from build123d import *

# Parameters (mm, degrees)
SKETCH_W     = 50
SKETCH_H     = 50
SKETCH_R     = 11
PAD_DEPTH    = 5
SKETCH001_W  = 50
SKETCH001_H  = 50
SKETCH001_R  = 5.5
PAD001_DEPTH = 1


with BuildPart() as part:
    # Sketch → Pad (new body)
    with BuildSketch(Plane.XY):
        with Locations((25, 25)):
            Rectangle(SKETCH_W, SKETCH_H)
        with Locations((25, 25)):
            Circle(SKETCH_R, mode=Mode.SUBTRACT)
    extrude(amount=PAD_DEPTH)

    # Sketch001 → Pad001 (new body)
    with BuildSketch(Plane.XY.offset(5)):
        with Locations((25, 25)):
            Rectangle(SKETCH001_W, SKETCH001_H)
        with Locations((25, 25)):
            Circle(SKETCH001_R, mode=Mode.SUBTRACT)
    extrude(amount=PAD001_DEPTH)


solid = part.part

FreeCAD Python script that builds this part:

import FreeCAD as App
import Part
import Sketcher
from FreeCAD import Vector

doc = App.newDocument("Part")
params = doc.addObject("Spreadsheet::Sheet", "Params")
for row, (alias, value) in enumerate([
    ("sketch1_diameter", "22 mm"),
    ("sketch1_width", "50 mm"),
    ("pad1_length", "5 mm"),
    ("sketch2_diameter", "11 mm"),
    ("sketch2_width", "50 mm"),
    ("pad2_length", "1 mm"),
], start=1):
    params.set(f"A{row}", alias)
    params.set(f"B{row}", "=" + value)
    params.setAlias(f"B{row}", alias)

body = doc.addObject("PartDesign::Body", "Body")

# Sketch on XY plane
sketch1 = body.newObject("Sketcher::SketchObject", "Sketch")
sketch1.AttachmentSupport = (doc.getObject("XY_Plane"), [""])
sketch1.MapMode = "FlatFace"
sketch1.addGeometry([
    Part.LineSegment(Vector(0, 50, 0), Vector(0, 0, 0)),  # 0
    Part.LineSegment(Vector(0, 0, 0), Vector(50, 0, 0)),  # 1
    Part.LineSegment(Vector(50, 0, 0), Vector(50, 50, 0)),  # 2
    Part.LineSegment(Vector(50, 50, 0), Vector(0, 50, 0)),  # 3
    Part.Circle(Vector(25, 25, 0), Vector(0, 0, 1), 11),  # 4
], False)
sketch1.addConstraint([
    Sketcher.Constraint("Coincident", 0, 2, 1, 1),
    Sketcher.Constraint("Coincident", 1, 2, 2, 1),
    Sketcher.Constraint("Coincident", 2, 2, 3, 1),
    Sketcher.Constraint("Coincident", 3, 2, 0, 1),
    Sketcher.Constraint("Vertical", 0),
    Sketcher.Constraint("Horizontal", 1),
    Sketcher.Constraint("Vertical", 2),
    Sketcher.Constraint("Horizontal", 3),
    Sketcher.Constraint("Coincident", 0, 2, -1, 1),
    Sketcher.Constraint("Equal", 3, 0),
    Sketcher.Constraint("Diameter", 4, 22.0),
    Sketcher.Constraint("DistanceX", 1, 1, 1, 2, 50.0),
    Sketcher.Constraint("DistanceX", -1, 1, 4, 3, 25.0),
    Sketcher.Constraint("DistanceY", -1, 1, 4, 3, 25.0),
])
sketch1.setExpression("Constraints[10]", "Params.sketch1_diameter")
sketch1.setExpression("Constraints[11]", "Params.sketch1_width")
pad1 = body.newObject("PartDesign::Pad", "Pad")
pad1.Profile = sketch1
pad1.setExpression("Length", "Params.pad1_length")

# Sketch on XY plane
sketch2 = body.newObject("Sketcher::SketchObject", "Sketch001")
sketch2.AttachmentSupport = (doc.getObject("XY_Plane"), [""])
sketch2.MapMode = "FlatFace"
sketch2.AttachmentOffset = App.Placement(Vector(0, 0, 5), App.Rotation())
sketch2.addGeometry([
    Part.LineSegment(Vector(0, 50, 0), Vector(0, 0, 0)),  # 0
    Part.LineSegment(Vector(0, 0, 0), Vector(50, 0, 0)),  # 1
    Part.LineSegment(Vector(50, 0, 0), Vector(50, 50, 0)),  # 2
    Part.LineSegment(Vector(50, 50, 0), Vector(0, 50, 0)),  # 3
    Part.Circle(Vector(25, 25, 0), Vector(0, 0, 1), 6),  # 4
], False)
sketch2.addConstraint([
    Sketcher.Constraint("Coincident", 0, 2, 1, 1),
    Sketcher.Constraint("Coincident", 1, 2, 2, 1),
    Sketcher.Constraint("Coincident", 2, 2, 3, 1),
    Sketcher.Constraint("Coincident", 3, 2, 0, 1),
    Sketcher.Constraint("Vertical", 0),
    Sketcher.Constraint("Horizontal", 1),
    Sketcher.Constraint("Vertical", 2),
    Sketcher.Constraint("Horizontal", 3),
    Sketcher.Constraint("Coincident", 0, 2, -1, 1),
    Sketcher.Constraint("Equal", 3, 0),
    Sketcher.Constraint("Diameter", 4, 11.0),
    Sketcher.Constraint("DistanceX", 1, 1, 1, 2, 50.0),
    Sketcher.Constraint("DistanceX", -1, 1, 4, 3, 25.0),
    Sketcher.Constraint("DistanceY", -1, 1, 4, 3, 25.0),
])
sketch2.setExpression("Constraints[10]", "Params.sketch2_diameter")
sketch2.setExpression("Constraints[11]", "Params.sketch2_width")
pad2 = body.newObject("PartDesign::Pad", "Pad001")
pad2.Profile = sketch2
pad2.setExpression("Length", "Params.pad2_length")

doc.recompute()
